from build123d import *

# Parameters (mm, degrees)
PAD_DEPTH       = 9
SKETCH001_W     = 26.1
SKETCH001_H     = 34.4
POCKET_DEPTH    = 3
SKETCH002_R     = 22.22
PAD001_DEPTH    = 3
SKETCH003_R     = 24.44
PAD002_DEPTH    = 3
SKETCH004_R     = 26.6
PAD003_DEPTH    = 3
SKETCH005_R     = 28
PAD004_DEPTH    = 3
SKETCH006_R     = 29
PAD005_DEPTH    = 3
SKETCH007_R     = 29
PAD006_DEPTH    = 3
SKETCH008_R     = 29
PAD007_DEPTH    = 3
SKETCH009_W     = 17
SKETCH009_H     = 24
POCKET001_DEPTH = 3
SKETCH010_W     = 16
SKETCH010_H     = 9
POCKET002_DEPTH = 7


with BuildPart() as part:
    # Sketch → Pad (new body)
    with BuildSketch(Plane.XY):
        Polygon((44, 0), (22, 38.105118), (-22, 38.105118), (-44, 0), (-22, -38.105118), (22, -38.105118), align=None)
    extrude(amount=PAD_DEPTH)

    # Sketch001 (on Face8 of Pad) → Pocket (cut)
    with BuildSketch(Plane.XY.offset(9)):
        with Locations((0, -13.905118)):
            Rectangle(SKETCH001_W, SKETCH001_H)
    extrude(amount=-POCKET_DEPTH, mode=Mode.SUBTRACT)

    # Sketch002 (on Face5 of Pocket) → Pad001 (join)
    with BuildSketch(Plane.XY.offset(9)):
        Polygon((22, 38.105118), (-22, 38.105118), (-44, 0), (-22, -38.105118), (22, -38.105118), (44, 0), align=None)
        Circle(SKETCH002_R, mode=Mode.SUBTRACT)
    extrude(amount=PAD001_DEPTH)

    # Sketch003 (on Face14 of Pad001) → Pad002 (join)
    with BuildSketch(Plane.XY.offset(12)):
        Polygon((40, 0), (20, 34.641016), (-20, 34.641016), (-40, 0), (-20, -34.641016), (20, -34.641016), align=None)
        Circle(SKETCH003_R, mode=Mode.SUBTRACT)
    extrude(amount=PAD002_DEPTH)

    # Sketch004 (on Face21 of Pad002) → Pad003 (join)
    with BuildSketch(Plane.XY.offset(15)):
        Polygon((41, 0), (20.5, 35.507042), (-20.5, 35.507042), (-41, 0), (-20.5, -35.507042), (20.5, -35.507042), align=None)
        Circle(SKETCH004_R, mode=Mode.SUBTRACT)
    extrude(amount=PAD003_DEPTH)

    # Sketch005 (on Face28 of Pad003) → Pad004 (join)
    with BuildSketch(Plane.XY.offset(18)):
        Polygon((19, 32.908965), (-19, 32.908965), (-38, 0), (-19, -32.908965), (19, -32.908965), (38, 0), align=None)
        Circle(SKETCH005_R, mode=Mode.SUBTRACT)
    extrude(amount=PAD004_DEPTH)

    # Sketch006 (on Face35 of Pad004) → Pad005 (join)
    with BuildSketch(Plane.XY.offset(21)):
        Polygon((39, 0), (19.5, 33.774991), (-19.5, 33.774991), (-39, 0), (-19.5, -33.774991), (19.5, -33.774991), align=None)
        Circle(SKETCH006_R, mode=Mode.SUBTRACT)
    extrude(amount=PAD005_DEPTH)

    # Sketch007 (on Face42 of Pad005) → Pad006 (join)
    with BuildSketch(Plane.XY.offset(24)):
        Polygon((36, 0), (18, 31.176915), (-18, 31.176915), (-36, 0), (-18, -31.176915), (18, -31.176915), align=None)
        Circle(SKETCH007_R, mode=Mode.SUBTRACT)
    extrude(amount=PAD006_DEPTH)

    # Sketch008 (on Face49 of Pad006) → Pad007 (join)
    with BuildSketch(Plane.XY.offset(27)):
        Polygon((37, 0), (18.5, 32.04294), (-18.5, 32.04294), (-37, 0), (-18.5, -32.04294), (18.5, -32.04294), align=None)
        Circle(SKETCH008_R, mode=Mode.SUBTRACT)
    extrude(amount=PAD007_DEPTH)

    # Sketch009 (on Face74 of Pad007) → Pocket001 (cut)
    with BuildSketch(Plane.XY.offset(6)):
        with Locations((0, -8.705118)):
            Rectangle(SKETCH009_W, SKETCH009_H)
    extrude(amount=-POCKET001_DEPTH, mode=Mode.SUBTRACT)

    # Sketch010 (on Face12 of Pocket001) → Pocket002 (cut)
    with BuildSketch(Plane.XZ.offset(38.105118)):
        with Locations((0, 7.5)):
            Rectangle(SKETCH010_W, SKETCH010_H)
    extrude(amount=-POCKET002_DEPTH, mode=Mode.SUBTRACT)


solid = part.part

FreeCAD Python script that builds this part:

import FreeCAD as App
import Part
import Sketcher
from FreeCAD import Vector
Q = App.Units.Quantity


def add_polygon(sketch, points):
    """Adds a closed chain of lines whose ends are joined by coincident constraints."""
    first, n = sketch.GeometryCount, len(points)
    for a, b in zip(points, points[1:] + points[:1]):
        sketch.addGeometry(Part.LineSegment(App.Vector(*a, 0), App.Vector(*b, 0)), False)
    for i in range(n):
        sketch.addConstraint(Sketcher.Constraint("Coincident", first + i, 2, first + (i + 1) % n, 1))

doc = App.newDocument("Part")
body = doc.addObject("PartDesign::Body", "Body")

sketch1 = body.newObject("Sketcher::SketchObject", "Sketch")
sketch1.AttachmentSupport = (doc.getObject("XY_Plane"), [""])
sketch1.MapMode = "FlatFace"
add_polygon(sketch1, [(44, 0), (22, 38), (-22, 38), (-44, 0), (-22, -38), (22, -38)])
sketch1.addConstraint(Sketcher.Constraint("Horizontal", 1))
sketch1.addConstraint(Sketcher.Constraint("Horizontal", 4))
sketch1.addConstraint(Sketcher.Constraint("Symmetric", 0, 2, 3, 2, -1, 1))
sketch1.addConstraint(Sketcher.Constraint("Symmetric", 2, 2, 5, 2, -1, 1))
sketch1.addConstraint(Sketcher.Constraint("PointOnObject", 2, 2, -1))
sketch1.addConstraint(Sketcher.Constraint("Parallel", 2, 5))
sketch1.addConstraint(Sketcher.Constraint("Vertical", 1, 2, 3, 2))
sketch1.addConstraint(Sketcher.Constraint("DistanceX", 1, 2, 1, 1, 44.0))
sketch1.addConstraint(Sketcher.Constraint("Angle", 0, Q("120 deg")))
sketch1.addConstraint(Sketcher.Constraint("Distance", 0, 44.0))
pad1 = body.newObject("PartDesign::Pad", "Pad")
pad1.Profile = sketch1
pad1.Length = 9

sketch2 = body.newObject("Sketcher::SketchObject", "Sketch001")
sketch2.AttachmentSupport = (doc.getObject("XY_Plane"), [""])
sketch2.MapMode = "FlatFace"
sketch2.AttachmentOffset = App.Placement(Vector(0, 0, 9), App.Rotation())
add_polygon(sketch2, [(-13, 3), (-13, -31), (13, -31), (13, 3)])
sketch2.addConstraint(Sketcher.Constraint("Vertical", 0))
sketch2.addConstraint(Sketcher.Constraint("Horizontal", 1))
sketch2.addConstraint(Sketcher.Constraint("Vertical", 2))
sketch2.addConstraint(Sketcher.Constraint("Horizontal", 3))
sketch2.addConstraint(Sketcher.Constraint("DistanceX", 1, 1, 1, 2, 26.1))
sketch2.addConstraint(Sketcher.Constraint("DistanceY", 0, 2, 0, 1, 34.4))
sketch2.addConstraint(Sketcher.Constraint("DistanceX", 0, 2, -1, 1, 13.05))
sketch2.addConstraint(Sketcher.Constraint("DistanceY", 0, 2, -1, 1, 31.105118))
pocket1 = body.newObject("PartDesign::Pocket", "Pocket")
pocket1.Profile = sketch2
pocket1.Length = 3

sketch3 = body.newObject("Sketcher::SketchObject", "Sketch002")
sketch3.AttachmentSupport = (doc.getObject("XY_Plane"), [""])
sketch3.MapMode = "FlatFace"
sketch3.AttachmentOffset = App.Placement(Vector(0, 0, 9), App.Rotation())
add_polygon(sketch3, [(22, 38), (-22, 38), (-44, 0), (-22, -38), (22, -38), (44, 0)])
sketch3.addGeometry(Part.Circle(Vector(0, 0, 0), Vector(0, 0, 1), 22), False)
sketch3.addConstraint(Sketcher.Constraint("Horizontal", 0))
sketch3.addConstraint(Sketcher.Constraint("Horizontal", 3))
sketch3.addConstraint(Sketcher.Constraint("Coincident", 6, 3, -1, 1))
sketch3.addConstraint(Sketcher.Constraint("Symmetric", 0, 2, 3, 2, -1, 1))
sketch3.addConstraint(Sketcher.Constraint("Symmetric", 1, 2, 4, 2, -1, 1))
sketch3.addConstraint(Sketcher.Constraint("PointOnObject", 1, 2, -1))
sketch3.addConstraint(Sketcher.Constraint("Parallel", 2, 5))
sketch3.addConstraint(Sketcher.Constraint("Vertical", 0, 2, 2, 2))
sketch3.addConstraint(Sketcher.Constraint("Diameter", 6, 44.44))
sketch3.addConstraint(Sketcher.Constraint("DistanceX", 0, 2, 0, 1, 44.0))
sketch3.addConstraint(Sketcher.Constraint("Angle", 1, Q("-120 deg")))
sketch3.addConstraint(Sketcher.Constraint("Distance", 1, 44.0))
pad2 = body.newObject("PartDesign::Pad", "Pad001")
pad2.Profile = sketch3
pad2.Length = 3

sketch4 = body.newObject("Sketcher::SketchObject", "Sketch003")
sketch4.AttachmentSupport = (doc.getObject("XY_Plane"), [""])
sketch4.MapMode = "FlatFace"
sketch4.AttachmentOffset = App.Placement(Vector(0, 0, 12), App.Rotation())
add_polygon(sketch4, [(40, 0), (20, 35), (-20, 35), (-40, 0), (-20, -35), (20, -35)])
sketch4.addGeometry(Part.Circle(Vector(0, 0, 0), Vector(0, 0, 1), 24), False)
sketch4.addConstraint(Sketcher.Constraint("Horizontal", 1))
sketch4.addConstraint(Sketcher.Constraint("Horizontal", 4))
sketch4.addConstraint(Sketcher.Constraint("Coincident", 6, 3, -1, 1))
sketch4.addConstraint(Sketcher.Constraint("Symmetric", 0, 2, 3, 2, -1, 1))
sketch4.addConstraint(Sketcher.Constraint("Symmetric", 2, 2, 5, 2, -1, 1))
sketch4.addConstraint(Sketcher.Constraint("PointOnObject", 2, 2, -1))
sketch4.addConstraint(Sketcher.Constraint("Parallel", 2, 5))
sketch4.addConstraint(Sketcher.Constraint("Vertical", 1, 2, 3, 2))
sketch4.addConstraint(Sketcher.Constraint("Diameter", 6, 48.88))
sketch4.addConstraint(Sketcher.Constraint("DistanceX", 1, 2, 1, 1, 40.0))
sketch4.addConstraint(Sketcher.Constraint("Angle", 0, Q("120 deg")))
sketch4.addConstraint(Sketcher.Constraint("Distance", 0, 40.0))
pad3 = body.newObject("PartDesign::Pad", "Pad002")
pad3.Profile = sketch4
pad3.Length = 3

sketch5 = body.newObject("Sketcher::SketchObject", "Sketch004")
sketch5.AttachmentSupport = (doc.getObject("XY_Plane"), [""])
sketch5.MapMode = "FlatFace"
sketch5.AttachmentOffset = App.Placement(Vector(0, 0, 15), App.Rotation())
add_polygon(sketch5, [(41, 0), (20, 36), (-20, 36), (-41, 0), (-20, -36), (20, -36)])
sketch5.addGeometry(Part.Circle(Vector(0, 0, 0), Vector(0, 0, 1), 27), False)
sketch5.addConstraint(Sketcher.Constraint("Horizontal", 1))
sketch5.addConstraint(Sketcher.Constraint("Horizontal", 4))
sketch5.addConstraint(Sketcher.Constraint("Coincident", 6, 3, -1, 1))
sketch5.addConstraint(Sketcher.Constraint("Symmetric", 0, 2, 3, 2, -1, 1))
sketch5.addConstraint(Sketcher.Constraint("Symmetric", 2, 2, 5, 2, -1, 1))
sketch5.addConstraint(Sketcher.Constraint("PointOnObject", 2, 2, -1))
sketch5.addConstraint(Sketcher.Constraint("Parallel", 2, 5))
sketch5.addConstraint(Sketcher.Constraint("Vertical", 1, 2, 3, 2))
sketch5.addConstraint(Sketcher.Constraint("Diameter", 6, 53.2))
sketch5.addConstraint(Sketcher.Constraint("DistanceX", 1, 2, 1, 1, 41.0))
sketch5.addConstraint(Sketcher.Constraint("Angle", 0, Q("120 deg")))
sketch5.addConstraint(Sketcher.Constraint("Distance", 0, 41.0))
pad4 = body.newObject("PartDesign::Pad", "Pad003")
pad4.Profile = sketch5
pad4.Length = 3

sketch6 = body.newObject("Sketcher::SketchObject", "Sketch005")
sketch6.AttachmentSupport = (doc.getObject("XY_Plane"), [""])
sketch6.MapMode = "FlatFace"
sketch6.AttachmentOffset = App.Placement(Vector(0, 0, 18), App.Rotation())
add_polygon(sketch6, [(19, 33), (-19, 33), (-38, 0), (-19, -33), (19, -33), (38, 0)])
sketch6.addGeometry(Part.Circle(Vector(0, 0, 0), Vector(0, 0, 1), 28), False)
sketch6.addConstraint(Sketcher.Constraint("Horizontal", 0))
sketch6.addConstraint(Sketcher.Constraint("Horizontal", 3))
sketch6.addConstraint(Sketcher.Constraint("Coincident", 6, 3, -1, 1))
sketch6.addConstraint(Sketcher.Constraint("Symmetric", 0, 2, 3, 2, -1, 1))
sketch6.addConstraint(Sketcher.Constraint("Symmetric", 1, 2, 4, 2, -1, 1))
sketch6.addConstraint(Sketcher.Constraint("PointOnObject", 1, 2, -1))
sketch6.addConstraint(Sketcher.Constraint("Parallel", 2, 5))
sketch6.addConstraint(Sketcher.Constraint("Vertical", 0, 2, 2, 2))
sketch6.addConstraint(Sketcher.Constraint("Diameter", 6, 56.0))
sketch6.addConstraint(Sketcher.Constraint("DistanceX", 0, 2, 0, 1, 38.0))
sketch6.addConstraint(Sketcher.Constraint("Angle", 1, Q("-120 deg")))
sketch6.addConstraint(Sketcher.Constraint("Distance", 1, 38.0))
pad5 = body.newObject("PartDesign::Pad", "Pad004")
pad5.Profile = sketch6
pad5.Length = 3

sketch7 = body.newObject("Sketcher::SketchObject", "Sketch006")
sketch7.AttachmentSupport = (doc.getObject("XY_Plane"), [""])
sketch7.MapMode = "FlatFace"
sketch7.AttachmentOffset = App.Placement(Vector(0, 0, 21), App.Rotation())
add_polygon(sketch7, [(39, 0), (20, 34), (-20, 34), (-39, 0), (-20, -34), (20, -34)])
sketch7.addGeometry(Part.Circle(Vector(0, 0, 0), Vector(0, 0, 1), 29), False)
sketch7.addConstraint(Sketcher.Constraint("Horizontal", 1))
sketch7.addConstraint(Sketcher.Constraint("Horizontal", 4))
sketch7.addConstraint(Sketcher.Constraint("Coincident", 6, 3, -1, 1))
sketch7.addConstraint(Sketcher.Constraint("Symmetric", 0, 2, 3, 2, -1, 1))
sketch7.addConstraint(Sketcher.Constraint("Symmetric", 2, 2, 5, 2, -1, 1))
sketch7.addConstraint(Sketcher.Constraint("PointOnObject", 2, 2, -1))
sketch7.addConstraint(Sketcher.Constraint("Parallel", 2, 5))
sketch7.addConstraint(Sketcher.Constraint("Vertical", 1, 2, 3, 2))
sketch7.addConstraint(Sketcher.Constraint("Diameter", 6, 58.0))
sketch7.addConstraint(Sketcher.Constraint("DistanceX", 1, 2, 1, 1, 39.0))
sketch7.addConstraint(Sketcher.Constraint("Angle", 0, Q("120 deg")))
sketch7.addConstraint(Sketcher.Constraint("Distance", 0, 39.0))
pad6 = body.newObject("PartDesign::Pad", "Pad005")
pad6.Profile = sketch7
pad6.Length = 3

sketch8 = body.newObject("Sketcher::SketchObject", "Sketch007")
sketch8.AttachmentSupport = (doc.getObject("XY_Plane"), [""])
sketch8.MapMode = "FlatFace"
sketch8.AttachmentOffset = App.Placement(Vector(0, 0, 24), App.Rotation())
add_polygon(sketch8, [(36, 0), (18, 31), (-18, 31), (-36, 0), (-18, -31), (18, -31)])
sketch8.addGeometry(Part.Circle(Vector(0, 0, 0), Vector(0, 0, 1), 29), False)
sketch8.addConstraint(Sketcher.Constraint("Horizontal", 1))
sketch8.addConstraint(Sketcher.Constraint("Horizontal", 4))
sketch8.addConstraint(Sketcher.Constraint("Coincident", 6, 3, -1, 1))
sketch8.addConstraint(Sketcher.Constraint("Symmetric", 0, 2, 3, 2, -1, 1))
sketch8.addConstraint(Sketcher.Constraint("Symmetric", 2, 2, 5, 2, -1, 1))
sketch8.addConstraint(Sketcher.Constraint("PointOnObject", 2, 2, -1))
sketch8.addConstraint(Sketcher.Constraint("Parallel", 2, 5))
sketch8.addConstraint(Sketcher.Constraint("Vertical", 1, 2, 3, 2))
sketch8.addConstraint(Sketcher.Constraint("Diameter", 6, 58.0))
sketch8.addConstraint(Sketcher.Constraint("DistanceX", 1, 2, 1, 1, 36.0))
sketch8.addConstraint(Sketcher.Constraint("Angle", 0, Q("120 deg")))
sketch8.addConstraint(Sketcher.Constraint("Distance", 0, 36.0))
pad7 = body.newObject("PartDesign::Pad", "Pad006")
pad7.Profile = sketch8
pad7.Length = 3

sketch9 = body.newObject("Sketcher::SketchObject", "Sketch008")
sketch9.AttachmentSupport = (doc.getObject("XY_Plane"), [""])
sketch9.MapMode = "FlatFace"
sketch9.AttachmentOffset = App.Placement(Vector(0, 0, 27), App.Rotation())
add_polygon(sketch9, [(37, 0), (18, 32), (-18, 32), (-37, 0), (-18, -32), (18, -32)])
sketch9.addGeometry(Part.Circle(Vector(0, 0, 0), Vector(0, 0, 1), 29), False)
sketch9.addConstraint(Sketcher.Constraint("Horizontal", 1))
sketch9.addConstraint(Sketcher.Constraint("Horizontal", 4))
sketch9.addConstraint(Sketcher.Constraint("Coincident", 6, 3, -1, 1))
sketch9.addConstraint(Sketcher.Constraint("Symmetric", 0, 2, 3, 2, -1, 1))
sketch9.addConstraint(Sketcher.Constraint("Symmetric", 2, 2, 5, 2, -1, 1))
sketch9.addConstraint(Sketcher.Constraint("PointOnObject", 2, 2, -1))
sketch9.addConstraint(Sketcher.Constraint("Parallel", 2, 5))
sketch9.addConstraint(Sketcher.Constraint("Vertical", 1, 2, 3, 2))
sketch9.addConstraint(Sketcher.Constraint("Diameter", 6, 58.0))
sketch9.addConstraint(Sketcher.Constraint("DistanceX", 1, 2, 1, 1, 37.0))
sketch9.addConstraint(Sketcher.Constraint("Angle", 0, Q("120 deg")))
sketch9.addConstraint(Sketcher.Constraint("Distance", 0, 37.0))
pad8 = body.newObject("PartDesign::Pad", "Pad007")
pad8.Profile = sketch9
pad8.Length = 3

sketch10 = body.newObject("Sketcher::SketchObject", "Sketch009")
sketch10.AttachmentSupport = (doc.getObject("XY_Plane"), [""])
sketch10.MapMode = "FlatFace"
sketch10.AttachmentOffset = App.Placement(Vector(0, 0, 6), App.Rotation())
add_polygon(sketch10, [(-8, 3), (-8, -21), (8, -21), (8, 3)])
sketch10.addConstraint(Sketcher.Constraint("Vertical", 0))
sketch10.addConstraint(Sketcher.Constraint("Horizontal", 1))
sketch10.addConstraint(Sketcher.Constraint("Vertical", 2))
sketch10.addConstraint(Sketcher.Constraint("Horizontal", 3))
sketch10.addConstraint(Sketcher.Constraint("DistanceX", 1, 1, 1, 2, 17.0))
sketch10.addConstraint(Sketcher.Constraint("DistanceY", 0, 2, 0, 1, 24.0))
sketch10.addConstraint(Sketcher.Constraint("DistanceX", 0, 2, -1, 1, 8.5))
sketch10.addConstraint(Sketcher.Constraint("DistanceY", -1, 1, 2, 2, 3.294882))
pocket2 = body.newObject("PartDesign::Pocket", "Pocket001")
pocket2.Profile = sketch10
pocket2.Length = 3

sketch11 = body.newObject("Sketcher::SketchObject", "Sketch010")
sketch11.AttachmentSupport = (doc.getObject("XZ_Plane"), [""])
sketch11.MapMode = "FlatFace"
sketch11.AttachmentOffset = App.Placement(Vector(0, 0, 38.105118), App.Rotation())
add_polygon(sketch11, [(-8, 12), (-8, 3), (8, 3), (8, 12)])
sketch11.addConstraint(Sketcher.Constraint("Vertical", 0))
sketch11.addConstraint(Sketcher.Constraint("Horizontal", 1))
sketch11.addConstraint(Sketcher.Constraint("Vertical", 2))
sketch11.addConstraint(Sketcher.Constraint("Horizontal", 3))
sketch11.addConstraint(Sketcher.Constraint("DistanceX", 1, 1, 1, 2, 16.0))
sketch11.addConstraint(Sketcher.Constraint("DistanceY", 0, 2, 0, 1, 9.0))
sketch11.addConstraint(Sketcher.Constraint("DistanceX", 0, 2, -1, 1, 8.0))
sketch11.addConstraint(Sketcher.Constraint("DistanceY", -1, 1, 0, 2, 3.0))
pocket3 = body.newObject("PartDesign::Pocket", "Pocket002")
pocket3.Profile = sketch11
pocket3.Length = 7

doc.recompute()
